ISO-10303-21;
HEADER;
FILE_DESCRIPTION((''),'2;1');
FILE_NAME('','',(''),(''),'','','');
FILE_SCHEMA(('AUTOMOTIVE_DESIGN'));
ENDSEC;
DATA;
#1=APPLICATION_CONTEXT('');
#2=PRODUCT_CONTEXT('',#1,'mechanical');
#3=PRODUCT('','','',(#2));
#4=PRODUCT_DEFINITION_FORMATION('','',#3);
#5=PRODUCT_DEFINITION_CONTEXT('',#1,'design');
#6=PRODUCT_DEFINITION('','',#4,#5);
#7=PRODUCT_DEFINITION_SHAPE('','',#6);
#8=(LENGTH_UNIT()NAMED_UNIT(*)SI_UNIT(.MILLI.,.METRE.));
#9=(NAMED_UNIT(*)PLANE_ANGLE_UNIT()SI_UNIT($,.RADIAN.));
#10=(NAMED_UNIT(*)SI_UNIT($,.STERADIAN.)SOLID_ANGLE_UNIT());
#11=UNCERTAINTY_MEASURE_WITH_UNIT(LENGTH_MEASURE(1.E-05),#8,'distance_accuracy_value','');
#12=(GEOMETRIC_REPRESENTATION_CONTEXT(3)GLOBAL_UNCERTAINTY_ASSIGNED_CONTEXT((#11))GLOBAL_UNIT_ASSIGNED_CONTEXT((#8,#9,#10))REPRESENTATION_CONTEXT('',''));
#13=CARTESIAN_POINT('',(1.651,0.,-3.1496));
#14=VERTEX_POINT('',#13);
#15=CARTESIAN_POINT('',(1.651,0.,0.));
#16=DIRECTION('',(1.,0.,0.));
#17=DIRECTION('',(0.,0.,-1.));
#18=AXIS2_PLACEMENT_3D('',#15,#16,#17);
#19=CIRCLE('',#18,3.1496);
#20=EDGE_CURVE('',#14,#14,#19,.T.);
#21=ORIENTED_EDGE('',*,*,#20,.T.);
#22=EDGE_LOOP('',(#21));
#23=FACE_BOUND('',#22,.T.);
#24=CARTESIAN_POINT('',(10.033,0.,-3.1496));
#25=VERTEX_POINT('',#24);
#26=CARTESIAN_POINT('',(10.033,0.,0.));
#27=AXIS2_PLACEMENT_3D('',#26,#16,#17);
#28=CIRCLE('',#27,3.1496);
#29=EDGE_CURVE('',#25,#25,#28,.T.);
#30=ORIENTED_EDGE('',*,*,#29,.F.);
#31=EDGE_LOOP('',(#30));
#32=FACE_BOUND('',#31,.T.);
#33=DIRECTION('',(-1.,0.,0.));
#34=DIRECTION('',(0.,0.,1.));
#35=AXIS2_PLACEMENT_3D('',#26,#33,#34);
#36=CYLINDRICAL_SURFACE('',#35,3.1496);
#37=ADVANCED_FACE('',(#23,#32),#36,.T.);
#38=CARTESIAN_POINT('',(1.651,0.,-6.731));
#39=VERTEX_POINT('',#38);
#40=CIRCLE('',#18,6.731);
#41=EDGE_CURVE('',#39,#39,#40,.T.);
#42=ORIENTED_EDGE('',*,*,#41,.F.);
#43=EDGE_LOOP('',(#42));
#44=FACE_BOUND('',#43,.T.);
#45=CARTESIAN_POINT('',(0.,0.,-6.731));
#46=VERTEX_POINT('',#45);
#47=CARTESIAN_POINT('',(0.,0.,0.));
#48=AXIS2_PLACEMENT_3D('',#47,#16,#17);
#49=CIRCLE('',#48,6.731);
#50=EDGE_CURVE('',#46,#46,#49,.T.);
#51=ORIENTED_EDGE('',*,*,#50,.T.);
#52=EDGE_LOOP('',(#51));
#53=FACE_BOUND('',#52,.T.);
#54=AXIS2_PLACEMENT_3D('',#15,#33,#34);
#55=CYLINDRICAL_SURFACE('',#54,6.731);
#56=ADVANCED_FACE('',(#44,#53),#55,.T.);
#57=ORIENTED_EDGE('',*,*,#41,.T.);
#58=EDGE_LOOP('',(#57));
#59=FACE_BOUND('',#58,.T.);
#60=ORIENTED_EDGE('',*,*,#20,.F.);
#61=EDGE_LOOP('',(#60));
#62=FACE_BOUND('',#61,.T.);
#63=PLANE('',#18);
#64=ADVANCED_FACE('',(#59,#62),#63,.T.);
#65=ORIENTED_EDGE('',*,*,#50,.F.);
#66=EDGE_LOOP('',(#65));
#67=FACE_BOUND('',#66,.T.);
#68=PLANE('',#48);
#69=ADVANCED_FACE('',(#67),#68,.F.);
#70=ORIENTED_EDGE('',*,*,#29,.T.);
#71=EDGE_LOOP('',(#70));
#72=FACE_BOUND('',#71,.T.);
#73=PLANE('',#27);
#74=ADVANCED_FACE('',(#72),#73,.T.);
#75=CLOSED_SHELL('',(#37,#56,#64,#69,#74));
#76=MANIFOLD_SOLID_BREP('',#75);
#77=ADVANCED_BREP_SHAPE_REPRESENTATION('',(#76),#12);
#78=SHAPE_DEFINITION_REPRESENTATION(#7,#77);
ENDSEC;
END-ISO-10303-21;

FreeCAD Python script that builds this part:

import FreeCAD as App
import Part
import Sketcher
from FreeCAD import Vector
Q = App.Units.Quantity

doc = App.newDocument("Part")
body = doc.addObject("PartDesign::Body", "Body")

sketch1 = body.newObject("Sketcher::SketchObject", "Sketch")
sketch1.AttachmentSupport = (doc.getObject("YZ_Plane"), [""])
sketch1.MapMode = "FlatFace"
sketch1.addGeometry(Part.Circle(Vector(0, 0, 0), Vector(0, 0, 1), 7), False)
sketch1.addConstraint([
    Sketcher.Constraint("Coincident", 0, 3, -1, 1),
    Sketcher.Constraint("Diameter", 0, Q("0.53 in")),
])
pad1 = body.newObject("PartDesign::Pad", "Pad")
pad1.Profile = sketch1
pad1.Length = Q("0.065 in")

sketch2 = body.newObject("Sketcher::SketchObject", "Sketch001")
sketch2.AttachmentSupport = (doc.getObject("YZ_Plane"), [""])
sketch2.MapMode = "FlatFace"
sketch2.AttachmentOffset = App.Placement(Vector(0, 0, 0.065 * 25.4), App.Rotation())
sketch2.addGeometry(Part.Circle(Vector(0, 0, 0), Vector(0, 0, 1), 3.1), False)
sketch2.addConstraint([
    Sketcher.Constraint("Coincident", 0, 3, -1, 1),
    Sketcher.Constraint("Diameter", 0, Q("0.248 in")),
])
pad2 = body.newObject("PartDesign::Pad", "Pad001")
pad2.Profile = sketch2
pad2.Length = Q("0.33 in")

doc.recompute()
